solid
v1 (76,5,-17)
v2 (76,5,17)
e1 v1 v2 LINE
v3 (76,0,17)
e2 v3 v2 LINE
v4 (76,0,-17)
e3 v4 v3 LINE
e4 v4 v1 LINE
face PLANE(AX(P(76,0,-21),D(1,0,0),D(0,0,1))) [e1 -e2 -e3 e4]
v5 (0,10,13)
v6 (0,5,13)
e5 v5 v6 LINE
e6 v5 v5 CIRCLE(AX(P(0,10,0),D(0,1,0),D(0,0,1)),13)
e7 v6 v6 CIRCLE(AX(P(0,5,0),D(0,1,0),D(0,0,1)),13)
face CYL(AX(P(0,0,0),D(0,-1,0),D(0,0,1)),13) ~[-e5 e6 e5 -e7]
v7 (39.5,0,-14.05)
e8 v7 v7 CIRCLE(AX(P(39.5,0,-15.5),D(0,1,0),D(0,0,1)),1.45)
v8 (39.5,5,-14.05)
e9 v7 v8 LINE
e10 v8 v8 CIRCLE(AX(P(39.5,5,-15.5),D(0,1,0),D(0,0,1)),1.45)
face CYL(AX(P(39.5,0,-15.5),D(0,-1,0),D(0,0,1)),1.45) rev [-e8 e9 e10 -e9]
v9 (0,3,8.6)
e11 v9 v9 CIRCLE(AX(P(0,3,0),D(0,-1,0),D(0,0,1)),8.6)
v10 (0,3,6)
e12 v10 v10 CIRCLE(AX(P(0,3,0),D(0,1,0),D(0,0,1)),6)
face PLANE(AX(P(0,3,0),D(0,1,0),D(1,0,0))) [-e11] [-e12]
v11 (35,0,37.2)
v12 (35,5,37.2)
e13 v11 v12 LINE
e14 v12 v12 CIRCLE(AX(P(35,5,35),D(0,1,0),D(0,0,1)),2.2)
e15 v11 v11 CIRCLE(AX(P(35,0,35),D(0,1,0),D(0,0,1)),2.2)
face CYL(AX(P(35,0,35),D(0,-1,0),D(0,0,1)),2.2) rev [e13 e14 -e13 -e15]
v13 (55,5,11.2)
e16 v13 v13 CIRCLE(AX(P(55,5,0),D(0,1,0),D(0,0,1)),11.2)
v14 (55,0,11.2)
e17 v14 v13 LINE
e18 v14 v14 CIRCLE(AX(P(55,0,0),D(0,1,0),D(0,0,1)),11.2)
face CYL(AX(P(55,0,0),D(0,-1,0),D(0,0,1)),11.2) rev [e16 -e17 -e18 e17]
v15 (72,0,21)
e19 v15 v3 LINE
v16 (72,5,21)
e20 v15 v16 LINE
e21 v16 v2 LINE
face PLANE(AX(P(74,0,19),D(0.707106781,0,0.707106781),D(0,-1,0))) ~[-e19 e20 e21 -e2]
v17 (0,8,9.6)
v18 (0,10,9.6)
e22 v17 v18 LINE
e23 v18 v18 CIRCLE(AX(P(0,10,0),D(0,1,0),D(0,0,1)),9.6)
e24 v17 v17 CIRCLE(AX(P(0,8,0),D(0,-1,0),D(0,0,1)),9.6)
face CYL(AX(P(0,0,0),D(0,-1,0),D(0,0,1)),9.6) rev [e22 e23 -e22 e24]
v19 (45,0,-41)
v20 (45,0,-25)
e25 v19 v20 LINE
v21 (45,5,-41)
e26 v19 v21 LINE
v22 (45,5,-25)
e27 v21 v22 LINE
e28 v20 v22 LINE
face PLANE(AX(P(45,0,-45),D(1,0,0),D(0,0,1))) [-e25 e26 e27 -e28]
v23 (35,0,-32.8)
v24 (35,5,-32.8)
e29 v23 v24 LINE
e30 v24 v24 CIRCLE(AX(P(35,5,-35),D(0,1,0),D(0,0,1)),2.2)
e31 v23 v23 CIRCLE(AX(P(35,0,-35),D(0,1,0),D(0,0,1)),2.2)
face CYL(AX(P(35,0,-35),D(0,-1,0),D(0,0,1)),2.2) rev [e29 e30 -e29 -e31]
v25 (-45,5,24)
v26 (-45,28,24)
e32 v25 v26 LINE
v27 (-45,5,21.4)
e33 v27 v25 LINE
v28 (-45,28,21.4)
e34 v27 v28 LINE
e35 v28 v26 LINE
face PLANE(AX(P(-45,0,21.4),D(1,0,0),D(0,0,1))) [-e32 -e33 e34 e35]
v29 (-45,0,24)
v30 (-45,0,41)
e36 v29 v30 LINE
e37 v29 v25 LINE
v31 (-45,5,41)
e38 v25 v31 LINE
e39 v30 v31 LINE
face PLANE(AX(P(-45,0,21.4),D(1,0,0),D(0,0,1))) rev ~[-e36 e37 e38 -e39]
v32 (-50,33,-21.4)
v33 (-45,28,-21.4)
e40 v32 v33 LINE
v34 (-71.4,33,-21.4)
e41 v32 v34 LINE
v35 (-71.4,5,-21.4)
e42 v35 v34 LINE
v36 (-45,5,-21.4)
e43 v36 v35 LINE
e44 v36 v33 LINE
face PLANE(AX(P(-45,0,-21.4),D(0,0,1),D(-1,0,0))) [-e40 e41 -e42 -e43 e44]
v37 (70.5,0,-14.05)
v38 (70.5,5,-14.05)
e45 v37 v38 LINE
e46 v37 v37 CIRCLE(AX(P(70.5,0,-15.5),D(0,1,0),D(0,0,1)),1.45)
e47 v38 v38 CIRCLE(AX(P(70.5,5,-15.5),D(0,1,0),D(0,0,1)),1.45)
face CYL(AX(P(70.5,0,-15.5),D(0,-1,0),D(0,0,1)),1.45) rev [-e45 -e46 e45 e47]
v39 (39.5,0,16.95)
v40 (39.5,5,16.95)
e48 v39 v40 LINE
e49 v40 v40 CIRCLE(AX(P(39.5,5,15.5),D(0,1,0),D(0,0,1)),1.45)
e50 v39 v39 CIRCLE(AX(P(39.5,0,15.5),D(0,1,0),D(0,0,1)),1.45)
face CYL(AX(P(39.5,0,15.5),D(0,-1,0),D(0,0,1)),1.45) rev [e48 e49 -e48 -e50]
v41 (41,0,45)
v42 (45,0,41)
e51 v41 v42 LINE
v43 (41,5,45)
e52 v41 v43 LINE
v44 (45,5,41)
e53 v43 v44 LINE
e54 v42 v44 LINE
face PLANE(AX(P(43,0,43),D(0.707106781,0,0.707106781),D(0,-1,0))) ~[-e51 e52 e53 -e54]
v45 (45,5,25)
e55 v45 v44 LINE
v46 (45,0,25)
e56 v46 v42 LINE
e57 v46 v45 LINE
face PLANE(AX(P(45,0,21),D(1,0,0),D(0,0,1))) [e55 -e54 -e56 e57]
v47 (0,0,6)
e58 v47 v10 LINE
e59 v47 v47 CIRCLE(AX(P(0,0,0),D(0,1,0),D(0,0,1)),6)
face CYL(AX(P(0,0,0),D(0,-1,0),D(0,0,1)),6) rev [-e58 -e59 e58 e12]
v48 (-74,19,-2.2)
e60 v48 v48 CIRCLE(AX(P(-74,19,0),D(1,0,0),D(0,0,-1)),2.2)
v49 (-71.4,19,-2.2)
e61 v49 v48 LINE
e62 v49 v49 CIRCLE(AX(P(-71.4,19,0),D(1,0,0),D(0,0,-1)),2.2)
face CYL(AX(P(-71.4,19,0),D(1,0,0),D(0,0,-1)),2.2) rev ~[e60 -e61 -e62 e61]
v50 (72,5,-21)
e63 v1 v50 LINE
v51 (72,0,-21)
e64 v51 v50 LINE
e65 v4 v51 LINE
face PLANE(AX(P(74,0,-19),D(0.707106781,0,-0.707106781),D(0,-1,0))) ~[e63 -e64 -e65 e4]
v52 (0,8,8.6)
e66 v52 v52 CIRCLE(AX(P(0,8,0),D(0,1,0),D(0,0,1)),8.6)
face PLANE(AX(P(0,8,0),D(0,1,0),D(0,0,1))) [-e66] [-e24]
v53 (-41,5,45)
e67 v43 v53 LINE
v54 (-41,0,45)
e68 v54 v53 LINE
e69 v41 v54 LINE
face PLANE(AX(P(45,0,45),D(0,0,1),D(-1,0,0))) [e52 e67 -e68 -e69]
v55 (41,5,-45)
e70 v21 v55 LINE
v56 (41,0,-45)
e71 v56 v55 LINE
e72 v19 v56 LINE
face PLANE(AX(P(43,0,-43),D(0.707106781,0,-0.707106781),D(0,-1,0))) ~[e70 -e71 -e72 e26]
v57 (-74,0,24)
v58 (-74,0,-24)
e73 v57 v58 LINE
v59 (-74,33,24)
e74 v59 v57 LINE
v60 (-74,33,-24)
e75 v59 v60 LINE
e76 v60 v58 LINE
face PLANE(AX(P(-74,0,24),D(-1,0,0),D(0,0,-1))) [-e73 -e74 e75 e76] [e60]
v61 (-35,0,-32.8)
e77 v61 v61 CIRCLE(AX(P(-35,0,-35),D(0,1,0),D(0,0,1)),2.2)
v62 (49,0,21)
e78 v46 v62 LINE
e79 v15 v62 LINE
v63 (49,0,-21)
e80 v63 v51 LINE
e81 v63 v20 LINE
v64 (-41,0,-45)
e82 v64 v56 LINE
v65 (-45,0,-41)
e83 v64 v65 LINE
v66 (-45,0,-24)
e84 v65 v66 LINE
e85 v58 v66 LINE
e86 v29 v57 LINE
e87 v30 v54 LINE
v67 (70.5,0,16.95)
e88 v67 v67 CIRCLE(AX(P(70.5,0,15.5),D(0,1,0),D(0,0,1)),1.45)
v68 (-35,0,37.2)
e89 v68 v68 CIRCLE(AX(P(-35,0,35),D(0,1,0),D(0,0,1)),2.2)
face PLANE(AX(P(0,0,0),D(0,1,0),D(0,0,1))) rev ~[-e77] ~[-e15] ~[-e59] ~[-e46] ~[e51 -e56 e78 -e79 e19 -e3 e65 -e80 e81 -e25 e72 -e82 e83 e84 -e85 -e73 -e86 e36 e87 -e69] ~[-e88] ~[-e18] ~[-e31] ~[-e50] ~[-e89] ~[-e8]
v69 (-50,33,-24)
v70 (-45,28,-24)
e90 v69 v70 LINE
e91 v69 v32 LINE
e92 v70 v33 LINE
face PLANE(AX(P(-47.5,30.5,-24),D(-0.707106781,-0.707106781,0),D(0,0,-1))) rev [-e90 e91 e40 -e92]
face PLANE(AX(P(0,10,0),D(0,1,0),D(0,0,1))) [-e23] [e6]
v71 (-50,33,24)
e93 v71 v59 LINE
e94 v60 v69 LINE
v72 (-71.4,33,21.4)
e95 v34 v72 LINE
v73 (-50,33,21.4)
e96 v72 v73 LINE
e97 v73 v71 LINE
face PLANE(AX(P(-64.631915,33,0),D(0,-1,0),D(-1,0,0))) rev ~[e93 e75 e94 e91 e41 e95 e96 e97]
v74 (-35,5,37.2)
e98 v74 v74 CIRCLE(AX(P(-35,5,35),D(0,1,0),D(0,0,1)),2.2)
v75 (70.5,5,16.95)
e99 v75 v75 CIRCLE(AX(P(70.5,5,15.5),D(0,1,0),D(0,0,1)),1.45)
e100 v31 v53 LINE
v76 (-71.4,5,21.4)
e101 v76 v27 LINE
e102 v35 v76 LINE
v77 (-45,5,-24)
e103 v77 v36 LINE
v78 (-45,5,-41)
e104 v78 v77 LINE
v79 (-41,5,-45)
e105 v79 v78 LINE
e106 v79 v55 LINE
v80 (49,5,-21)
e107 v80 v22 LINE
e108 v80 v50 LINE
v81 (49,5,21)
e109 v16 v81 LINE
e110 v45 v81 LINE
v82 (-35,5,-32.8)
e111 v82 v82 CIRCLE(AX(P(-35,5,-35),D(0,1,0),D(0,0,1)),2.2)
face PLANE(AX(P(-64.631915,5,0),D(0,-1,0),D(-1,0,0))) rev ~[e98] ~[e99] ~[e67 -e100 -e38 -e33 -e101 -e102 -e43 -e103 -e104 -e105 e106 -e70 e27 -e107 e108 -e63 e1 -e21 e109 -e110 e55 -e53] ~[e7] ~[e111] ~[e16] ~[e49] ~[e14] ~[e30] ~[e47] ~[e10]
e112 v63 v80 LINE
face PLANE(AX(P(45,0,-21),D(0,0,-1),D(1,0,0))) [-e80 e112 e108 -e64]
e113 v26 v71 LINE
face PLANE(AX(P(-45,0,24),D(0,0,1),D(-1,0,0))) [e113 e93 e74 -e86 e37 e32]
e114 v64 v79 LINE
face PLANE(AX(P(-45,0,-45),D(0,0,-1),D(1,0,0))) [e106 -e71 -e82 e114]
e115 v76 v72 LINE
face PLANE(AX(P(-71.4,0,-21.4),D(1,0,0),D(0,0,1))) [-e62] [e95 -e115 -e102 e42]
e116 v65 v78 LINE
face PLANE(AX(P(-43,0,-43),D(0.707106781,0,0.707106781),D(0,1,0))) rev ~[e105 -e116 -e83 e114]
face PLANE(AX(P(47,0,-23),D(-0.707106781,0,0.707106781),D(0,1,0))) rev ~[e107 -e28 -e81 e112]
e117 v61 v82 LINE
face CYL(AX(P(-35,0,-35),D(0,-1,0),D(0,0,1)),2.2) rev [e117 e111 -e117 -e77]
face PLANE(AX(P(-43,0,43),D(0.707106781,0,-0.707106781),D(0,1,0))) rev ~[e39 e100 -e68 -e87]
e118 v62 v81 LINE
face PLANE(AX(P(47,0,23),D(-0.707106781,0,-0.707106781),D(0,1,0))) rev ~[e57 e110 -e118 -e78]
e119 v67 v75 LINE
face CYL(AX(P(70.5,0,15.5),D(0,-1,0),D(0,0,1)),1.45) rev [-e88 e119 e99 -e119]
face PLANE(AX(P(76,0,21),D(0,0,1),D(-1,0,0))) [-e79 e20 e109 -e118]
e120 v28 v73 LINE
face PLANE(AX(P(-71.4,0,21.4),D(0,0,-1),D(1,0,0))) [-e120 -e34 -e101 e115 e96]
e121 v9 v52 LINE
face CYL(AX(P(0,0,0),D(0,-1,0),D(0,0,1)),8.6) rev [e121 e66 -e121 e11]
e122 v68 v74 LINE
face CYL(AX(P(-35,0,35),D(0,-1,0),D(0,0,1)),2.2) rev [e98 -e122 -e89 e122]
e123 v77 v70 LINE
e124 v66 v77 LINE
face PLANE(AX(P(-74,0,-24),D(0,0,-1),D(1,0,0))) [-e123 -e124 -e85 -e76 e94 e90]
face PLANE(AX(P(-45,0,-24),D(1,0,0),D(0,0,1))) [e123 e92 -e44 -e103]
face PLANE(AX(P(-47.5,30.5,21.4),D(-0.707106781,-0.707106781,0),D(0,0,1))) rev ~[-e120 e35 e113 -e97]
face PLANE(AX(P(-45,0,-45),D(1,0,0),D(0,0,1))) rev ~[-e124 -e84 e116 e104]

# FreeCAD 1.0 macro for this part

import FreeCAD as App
import Part
import Sketcher


def edges_at(feature, points):
    """Names of the edges that pass closest to the given points."""
    edges = feature.Shape.Edges
    near = lambda p: min(range(len(edges)), key=lambda i: edges[i].distToShape(Part.Vertex(*p))[0])
    return sorted({f"Edge{near(p) + 1}" for p in points})


def add_polygon(sketch, points):
    """Adds a closed chain of lines whose ends are joined by coincident constraints."""
    first, n = sketch.GeometryCount, len(points)
    for a, b in zip(points, points[1:] + points[:1]):
        sketch.addGeometry(Part.LineSegment(App.Vector(*a, 0), App.Vector(*b, 0)), False)
    for i in range(n):
        sketch.addConstraint(Sketcher.Constraint("Coincident", first + i, 2, first + (i + 1) % n, 1))

doc = App.newDocument("Part")
body = doc.addObject("PartDesign::Body", "Body")

# Sketch on XZ plane
sketch1 = doc.addObject("Sketcher::SketchObject", "Sketch")
body.addObject(sketch1)
sketch1.AttachmentSupport = (doc.XZ_Plane, [""])
sketch1.MapMode = "FlatFace"
add_polygon(sketch1, [(-45, 24), (-45, 45), (45, 45), (45, 21), (76, 21), (76, -21), (45, -21), (45, -45), (-45, -45), (-45, -24), (-74, -24), (-74, 24)])  # lines 0-11
sketch1.addGeometry(Part.Circle(App.Vector(35, 35, 0), App.Vector(0, 0, 1), 2.2), False)  # 12
sketch1.addGeometry(Part.Circle(App.Vector(70.5, 15.5, 0), App.Vector(0, 0, 1), 1.45), False)  # 13
sketch1.addGeometry(Part.Circle(App.Vector(39.5, 15.5, 0), App.Vector(0, 0, 1), 1.45), False)  # 14
sketch1.addGeometry(Part.Circle(App.Vector(-35, 35, 0), App.Vector(0, 0, 1), 2.2), False)  # 15
sketch1.addGeometry(Part.Circle(App.Vector(55, 0, 0), App.Vector(0, 0, 1), 11.2), False)  # 16
sketch1.addGeometry(Part.Circle(App.Vector(70.5, -15.5, 0), App.Vector(0, 0, 1), 1.45), False)  # 17
sketch1.addGeometry(Part.Circle(App.Vector(39.5, -15.5, 0), App.Vector(0, 0, 1), 1.45), False)  # 18
sketch1.addGeometry(Part.Circle(App.Vector(35, -35, 0), App.Vector(0, 0, 1), 2.2), False)  # 19
sketch1.addGeometry(Part.Circle(App.Vector(0, 0, 0), App.Vector(0, 0, 1), 13), False)  # 20
sketch1.addGeometry(Part.Circle(App.Vector(-35, -35, 0), App.Vector(0, 0, 1), 2.2), False)  # 21
sketch1.addConstraint([
    Sketcher.Constraint("Vertical", 0),
    Sketcher.Constraint("Horizontal", 1),
    Sketcher.Constraint("Vertical", 2),
    Sketcher.Constraint("Horizontal", 3),
    Sketcher.Constraint("Vertical", 4),
    Sketcher.Constraint("Horizontal", 5),
    Sketcher.Constraint("Vertical", 6),
    Sketcher.Constraint("Horizontal", 7),
    Sketcher.Constraint("Vertical", 8),
    Sketcher.Constraint("Horizontal", 9),
    Sketcher.Constraint("Vertical", 10),
    Sketcher.Constraint("Horizontal", 11),
    Sketcher.Constraint("Coincident", 20, 3, -1, 1),
    Sketcher.Constraint("Equal", 13, 14),
    Sketcher.Constraint("Equal", 12, 15),
    Sketcher.Constraint("Equal", 14, 17),
    Sketcher.Constraint("Equal", 17, 18),
    Sketcher.Constraint("Equal", 15, 19),
    Sketcher.Constraint("Equal", 19, 21),
    Sketcher.Constraint("Symmetric", 15, 3, 19, 3, -1, 1),
    Sketcher.Constraint("Symmetric", 12, 3, 21, 3, -1, 1),
    Sketcher.Constraint("Symmetric", 0, 2, 6, 2, -1, 1),
    Sketcher.Constraint("Symmetric", 12, 3, 15, 3, -2),
    Sketcher.Constraint("Symmetric", 13, 3, 17, 3, -1),
    Sketcher.Constraint("Symmetric", 14, 3, 18, 3, -1),
    Sketcher.Constraint("Symmetric", 2, 2, 5, 2, -1),
    Sketcher.Constraint("Symmetric", 8, 2, 11, 2, -1),
    Sketcher.Constraint("PointOnObject", 16, 3, -1),
    Sketcher.Constraint("Horizontal", 13, 3, 14, 3),
    Sketcher.Constraint("Diameter", 20, 26.0),
    Sketcher.Constraint("Diameter", 12, 4.4),
    Sketcher.Constraint("Diameter", 13, 2.9),
    Sketcher.Constraint("Diameter", 16, 22.4),
    Sketcher.Constraint("DistanceX", 1, 1, 1, 2, 90.0),
    Sketcher.Constraint("DistanceX", 3, 1, 3, 2, 31.0),
    Sketcher.Constraint("DistanceX", 9, 2, 9, 1, 29.0),
    Sketcher.Constraint("DistanceY", 0, 1, 0, 2, 21.0),
    Sketcher.Constraint("DistanceY", 2, 2, 2, 1, 24.0),
    Sketcher.Constraint("DistanceY", 4, 2, 4, 1, 42.0),
    Sketcher.Constraint("DistanceX", -1, 1, 12, 3, 35.0),
    Sketcher.Constraint("DistanceY", -1, 1, 12, 3, 35.0),
    Sketcher.Constraint("DistanceX", -1, 1, 16, 3, 55.0),
    Sketcher.Constraint("DistanceX", 14, 3, 13, 3, 31.0),
    Sketcher.Constraint("DistanceY", 17, 3, 13, 3, 31.0),
    Sketcher.Constraint("DistanceX", -1, 1, 13, 3, 70.5),
])
pad1 = doc.addObject("PartDesign::Pad", "Pad")
body.addObject(pad1)
pad1.Profile = sketch1
pad1.Length = 5
pad1.Reversed = True

# Sketch on XZ plane
sketch2 = doc.addObject("Sketcher::SketchObject", "Sketch001")
body.addObject(sketch2)
sketch2.AttachmentSupport = (doc.XZ_Plane, [""])
sketch2.MapMode = "FlatFace"
add_polygon(sketch2, [(-74, 24), (-45, 24), (-45, 21.4), (-71.4, 21.4), (-71.4, -21.4), (-45, -21.4), (-45, -24), (-74, -24)])  # lines 0-7
sketch2.addConstraint([
    Sketcher.Constraint("Horizontal", 0),
    Sketcher.Constraint("Vertical", 1),
    Sketcher.Constraint("Horizontal", 2),
    Sketcher.Constraint("Vertical", 3),
    Sketcher.Constraint("Horizontal", 4),
    Sketcher.Constraint("Vertical", 5),
    Sketcher.Constraint("Horizontal", 6),
    Sketcher.Constraint("Vertical", 7),
    Sketcher.Constraint("Symmetric", 1, 2, 4, 2, -1),
    Sketcher.Constraint("Equal", 1, 5),
    Sketcher.Constraint("DistanceX", 0, 1, 0, 2, 29.0),
    Sketcher.Constraint("DistanceY", 7, 1, 7, 2, 48.0),
    Sketcher.Constraint("DistanceX", 2, 2, 2, 1, 26.4),
    Sketcher.Constraint("DistanceY", 1, 2, 1, 1, 2.6),
    Sketcher.Constraint("DistanceX", 0, 2, -1, 1, 45.0),
])
pad2 = doc.addObject("PartDesign::Pad", "Pad001")
body.addObject(pad2)
pad2.Profile = sketch2
pad2.Length = 33
pad2.Reversed = True

# Sketch on XZ plane
sketch3 = doc.addObject("Sketcher::SketchObject", "Sketch002")
body.addObject(sketch3)
sketch3.AttachmentSupport = (doc.XZ_Plane, [""])
sketch3.MapMode = "FlatFace"
sketch3.addGeometry([
    Part.Circle(App.Vector(0, 0, 0), App.Vector(0, 0, 1), 13),
    Part.Circle(App.Vector(0, 0, 0), App.Vector(0, 0, 1), 6),
], False)
sketch3.addConstraint([
    Sketcher.Constraint("Coincident", 0, 3, -1, 1),
    Sketcher.Constraint("Coincident", 1, 3, -1, 1),
    Sketcher.Constraint("Diameter", 0, 26.0),
    Sketcher.Constraint("Diameter", 1, 12.0),
])
pad3 = doc.addObject("PartDesign::Pad", "Pad002")
body.addObject(pad3)
pad3.Profile = sketch3
pad3.Length = 3
pad3.Reversed = True

# Sketch on XZ plane
sketch4 = doc.addObject("Sketcher::SketchObject", "Sketch003")
body.addObject(sketch4)
sketch4.AttachmentSupport = (doc.XZ_Plane, [""])
sketch4.MapMode = "FlatFace"
sketch4.addGeometry([
    Part.Circle(App.Vector(0, 0, 0), App.Vector(0, 0, 1), 13),
    Part.Circle(App.Vector(0, 0, 0), App.Vector(0, 0, 1), 8.6),
], False)
sketch4.addConstraint([
    Sketcher.Constraint("Coincident", 0, 3, -1, 1),
    Sketcher.Constraint("Coincident", 1, 3, -1, 1),
    Sketcher.Constraint("Diameter", 0, 26.0),
    Sketcher.Constraint("Diameter", 1, 17.2),
])
pad4 = doc.addObject("PartDesign::Pad", "Pad003")
body.addObject(pad4)
pad4.Profile = sketch4
pad4.Length = 8
pad4.Reversed = True

# Sketch on XZ plane
sketch5 = doc.addObject("Sketcher::SketchObject", "Sketch004")
body.addObject(sketch5)
sketch5.AttachmentSupport = (doc.XZ_Plane, [""])
sketch5.MapMode = "FlatFace"
sketch5.addGeometry([
    Part.Circle(App.Vector(0, 0, 0), App.Vector(0, 0, 1), 13),
    Part.Circle(App.Vector(0, 0, 0), App.Vector(0, 0, 1), 9.6),
], False)
sketch5.addConstraint([
    Sketcher.Constraint("Coincident", 0, 3, -1, 1),
    Sketcher.Constraint("Coincident", 1, 3, -1, 1),
    Sketcher.Constraint("Diameter", 0, 26.0),
    Sketcher.Constraint("Diameter", 1, 19.2),
])
pad5 = doc.addObject("PartDesign::Pad", "Pad004")
body.addObject(pad5)
pad5.Profile = sketch5
pad5.Length = 10
pad5.Reversed = True

# Sketch on YZ plane
sketch6 = doc.addObject("Sketcher::SketchObject", "Sketch005")
body.addObject(sketch6)
sketch6.AttachmentSupport = (doc.YZ_Plane, [""])
sketch6.MapMode = "FlatFace"
sketch6.AttachmentOffset = App.Placement(App.Vector(0, 0, -71.4), App.Rotation())
sketch6.addGeometry(Part.Circle(App.Vector(19, 0, 0), App.Vector(0, 0, 1), 2.2), False)
sketch6.addConstraint([
    Sketcher.Constraint("PointOnObject", 0, 3, -1),
    Sketcher.Constraint("Diameter", 0, 4.4),
    Sketcher.Constraint("DistanceX", -1, 1, 0, 3, 19.0),
])
pocket1 = doc.addObject("PartDesign::Pocket", "Pocket")
body.addObject(pocket1)
pocket1.Profile = sketch6
pocket1.Length = 10
doc.recompute()

chamfer = doc.addObject("PartDesign::Chamfer", "Chamfer")
body.addObject(chamfer)
chamfer.Base = (pocket1, edges_at(pocket1, [
    (-45, 2.5, -45),
    (45, 2.5, -45),
    (45, 2.5, -21),
    (76, 2.5, -21),
    (76, 2.5, 21),
    (45, 2.5, 21),
    (45, 2.5, 45),
    (-45, 2.5, 45),
]))
chamfer.Size = 4
doc.recompute()

chamfer2 = doc.addObject("PartDesign::Chamfer", "Chamfer001")
body.addObject(chamfer2)
chamfer2.Base = (chamfer, edges_at(chamfer, [(-45, 33, -22.7), (-45, 33, 22.7)]))
chamfer2.Size = 5

doc.recompute()
